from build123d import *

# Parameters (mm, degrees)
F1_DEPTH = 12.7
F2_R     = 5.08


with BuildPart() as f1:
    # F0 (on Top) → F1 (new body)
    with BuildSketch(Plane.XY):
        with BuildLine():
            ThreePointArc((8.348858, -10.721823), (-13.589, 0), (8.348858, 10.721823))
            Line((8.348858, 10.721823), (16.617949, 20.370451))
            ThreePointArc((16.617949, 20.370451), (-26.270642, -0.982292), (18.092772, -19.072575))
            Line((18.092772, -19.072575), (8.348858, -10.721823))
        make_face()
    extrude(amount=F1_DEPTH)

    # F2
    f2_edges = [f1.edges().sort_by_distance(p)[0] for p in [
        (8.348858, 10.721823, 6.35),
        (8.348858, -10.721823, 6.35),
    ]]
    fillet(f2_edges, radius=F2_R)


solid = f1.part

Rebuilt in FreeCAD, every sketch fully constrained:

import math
import FreeCAD as App
import Part
import Sketcher
from FreeCAD import Vector
Q = App.Units.Quantity


def edges_at(feature, points):
    """Names of the edges that pass closest to the given points."""
    edges = feature.Shape.Edges
    near = lambda p: min(range(len(edges)), key=lambda i: edges[i].distToShape(Part.Vertex(*p))[0])
    return sorted({f"Edge{near(p) + 1}" for p in points})

doc = App.newDocument("Part")
body = doc.addObject("PartDesign::Body", "Body")

# Sketch on XY plane
sketch1 = doc.addObject("Sketcher::SketchObject", "Sketch")
body.addObject(sketch1)
sketch1.AttachmentSupport = (doc.XY_Plane, [""])
sketch1.MapMode = "FlatFace"
sketch1.addGeometry([
    Part.ArcOfCircle(Part.Circle(Vector(0, 0, 0), Vector(0, 0, 1), 14), math.radians(52), math.radians(308)),
    Part.LineSegment(Vector(8, 11, 0), Vector(17, 20, 0)),
    Part.ArcOfCircle(Part.Circle(Vector(0, 0, 0), Vector(0, 0, 1), 26), math.radians(51), math.radians(313)),
    Part.LineSegment(Vector(18, -19, 0), Vector(8, -11, 0)),
], False)
sketch1.addConstraint([
    Sketcher.Constraint("Coincident", 0, 1, 1, 1),
    Sketcher.Constraint("Coincident", 1, 2, 2, 1),
    Sketcher.Constraint("Coincident", 2, 2, 3, 1),
    Sketcher.Constraint("Coincident", 3, 2, 0, 2),
    Sketcher.Constraint("Coincident", 0, 3, -1, 1),
    Sketcher.Constraint("Coincident", 2, 3, -1, 1),
    Sketcher.Constraint("Perpendicular", 1, 3),
    Sketcher.Constraint("Vertical", 0, 1, 3, 2),
    Sketcher.Constraint("Radius", 0, Q("0.535 in")),
    Sketcher.Constraint("Radius", 2, Q("1.035 in")),
    Sketcher.Constraint("DistanceY", 2, 2, 0, 1, 29.794398),
    Sketcher.Constraint("Distance", 3, 12.832728),
])
pad1 = doc.addObject("PartDesign::Pad", "Pad")
body.addObject(pad1)
pad1.Profile = sketch1
pad1.Length = Q("0.5 in")
doc.recompute()

fillet = doc.addObject("PartDesign::Fillet", "Fillet")
body.addObject(fillet)
fillet.Base = (pad1, edges_at(pad1, [(8.349, 10.722, 6.35), (8.349, -10.722, 6.35)]))
fillet.Radius = Q("0.2 in")

doc.recompute()
